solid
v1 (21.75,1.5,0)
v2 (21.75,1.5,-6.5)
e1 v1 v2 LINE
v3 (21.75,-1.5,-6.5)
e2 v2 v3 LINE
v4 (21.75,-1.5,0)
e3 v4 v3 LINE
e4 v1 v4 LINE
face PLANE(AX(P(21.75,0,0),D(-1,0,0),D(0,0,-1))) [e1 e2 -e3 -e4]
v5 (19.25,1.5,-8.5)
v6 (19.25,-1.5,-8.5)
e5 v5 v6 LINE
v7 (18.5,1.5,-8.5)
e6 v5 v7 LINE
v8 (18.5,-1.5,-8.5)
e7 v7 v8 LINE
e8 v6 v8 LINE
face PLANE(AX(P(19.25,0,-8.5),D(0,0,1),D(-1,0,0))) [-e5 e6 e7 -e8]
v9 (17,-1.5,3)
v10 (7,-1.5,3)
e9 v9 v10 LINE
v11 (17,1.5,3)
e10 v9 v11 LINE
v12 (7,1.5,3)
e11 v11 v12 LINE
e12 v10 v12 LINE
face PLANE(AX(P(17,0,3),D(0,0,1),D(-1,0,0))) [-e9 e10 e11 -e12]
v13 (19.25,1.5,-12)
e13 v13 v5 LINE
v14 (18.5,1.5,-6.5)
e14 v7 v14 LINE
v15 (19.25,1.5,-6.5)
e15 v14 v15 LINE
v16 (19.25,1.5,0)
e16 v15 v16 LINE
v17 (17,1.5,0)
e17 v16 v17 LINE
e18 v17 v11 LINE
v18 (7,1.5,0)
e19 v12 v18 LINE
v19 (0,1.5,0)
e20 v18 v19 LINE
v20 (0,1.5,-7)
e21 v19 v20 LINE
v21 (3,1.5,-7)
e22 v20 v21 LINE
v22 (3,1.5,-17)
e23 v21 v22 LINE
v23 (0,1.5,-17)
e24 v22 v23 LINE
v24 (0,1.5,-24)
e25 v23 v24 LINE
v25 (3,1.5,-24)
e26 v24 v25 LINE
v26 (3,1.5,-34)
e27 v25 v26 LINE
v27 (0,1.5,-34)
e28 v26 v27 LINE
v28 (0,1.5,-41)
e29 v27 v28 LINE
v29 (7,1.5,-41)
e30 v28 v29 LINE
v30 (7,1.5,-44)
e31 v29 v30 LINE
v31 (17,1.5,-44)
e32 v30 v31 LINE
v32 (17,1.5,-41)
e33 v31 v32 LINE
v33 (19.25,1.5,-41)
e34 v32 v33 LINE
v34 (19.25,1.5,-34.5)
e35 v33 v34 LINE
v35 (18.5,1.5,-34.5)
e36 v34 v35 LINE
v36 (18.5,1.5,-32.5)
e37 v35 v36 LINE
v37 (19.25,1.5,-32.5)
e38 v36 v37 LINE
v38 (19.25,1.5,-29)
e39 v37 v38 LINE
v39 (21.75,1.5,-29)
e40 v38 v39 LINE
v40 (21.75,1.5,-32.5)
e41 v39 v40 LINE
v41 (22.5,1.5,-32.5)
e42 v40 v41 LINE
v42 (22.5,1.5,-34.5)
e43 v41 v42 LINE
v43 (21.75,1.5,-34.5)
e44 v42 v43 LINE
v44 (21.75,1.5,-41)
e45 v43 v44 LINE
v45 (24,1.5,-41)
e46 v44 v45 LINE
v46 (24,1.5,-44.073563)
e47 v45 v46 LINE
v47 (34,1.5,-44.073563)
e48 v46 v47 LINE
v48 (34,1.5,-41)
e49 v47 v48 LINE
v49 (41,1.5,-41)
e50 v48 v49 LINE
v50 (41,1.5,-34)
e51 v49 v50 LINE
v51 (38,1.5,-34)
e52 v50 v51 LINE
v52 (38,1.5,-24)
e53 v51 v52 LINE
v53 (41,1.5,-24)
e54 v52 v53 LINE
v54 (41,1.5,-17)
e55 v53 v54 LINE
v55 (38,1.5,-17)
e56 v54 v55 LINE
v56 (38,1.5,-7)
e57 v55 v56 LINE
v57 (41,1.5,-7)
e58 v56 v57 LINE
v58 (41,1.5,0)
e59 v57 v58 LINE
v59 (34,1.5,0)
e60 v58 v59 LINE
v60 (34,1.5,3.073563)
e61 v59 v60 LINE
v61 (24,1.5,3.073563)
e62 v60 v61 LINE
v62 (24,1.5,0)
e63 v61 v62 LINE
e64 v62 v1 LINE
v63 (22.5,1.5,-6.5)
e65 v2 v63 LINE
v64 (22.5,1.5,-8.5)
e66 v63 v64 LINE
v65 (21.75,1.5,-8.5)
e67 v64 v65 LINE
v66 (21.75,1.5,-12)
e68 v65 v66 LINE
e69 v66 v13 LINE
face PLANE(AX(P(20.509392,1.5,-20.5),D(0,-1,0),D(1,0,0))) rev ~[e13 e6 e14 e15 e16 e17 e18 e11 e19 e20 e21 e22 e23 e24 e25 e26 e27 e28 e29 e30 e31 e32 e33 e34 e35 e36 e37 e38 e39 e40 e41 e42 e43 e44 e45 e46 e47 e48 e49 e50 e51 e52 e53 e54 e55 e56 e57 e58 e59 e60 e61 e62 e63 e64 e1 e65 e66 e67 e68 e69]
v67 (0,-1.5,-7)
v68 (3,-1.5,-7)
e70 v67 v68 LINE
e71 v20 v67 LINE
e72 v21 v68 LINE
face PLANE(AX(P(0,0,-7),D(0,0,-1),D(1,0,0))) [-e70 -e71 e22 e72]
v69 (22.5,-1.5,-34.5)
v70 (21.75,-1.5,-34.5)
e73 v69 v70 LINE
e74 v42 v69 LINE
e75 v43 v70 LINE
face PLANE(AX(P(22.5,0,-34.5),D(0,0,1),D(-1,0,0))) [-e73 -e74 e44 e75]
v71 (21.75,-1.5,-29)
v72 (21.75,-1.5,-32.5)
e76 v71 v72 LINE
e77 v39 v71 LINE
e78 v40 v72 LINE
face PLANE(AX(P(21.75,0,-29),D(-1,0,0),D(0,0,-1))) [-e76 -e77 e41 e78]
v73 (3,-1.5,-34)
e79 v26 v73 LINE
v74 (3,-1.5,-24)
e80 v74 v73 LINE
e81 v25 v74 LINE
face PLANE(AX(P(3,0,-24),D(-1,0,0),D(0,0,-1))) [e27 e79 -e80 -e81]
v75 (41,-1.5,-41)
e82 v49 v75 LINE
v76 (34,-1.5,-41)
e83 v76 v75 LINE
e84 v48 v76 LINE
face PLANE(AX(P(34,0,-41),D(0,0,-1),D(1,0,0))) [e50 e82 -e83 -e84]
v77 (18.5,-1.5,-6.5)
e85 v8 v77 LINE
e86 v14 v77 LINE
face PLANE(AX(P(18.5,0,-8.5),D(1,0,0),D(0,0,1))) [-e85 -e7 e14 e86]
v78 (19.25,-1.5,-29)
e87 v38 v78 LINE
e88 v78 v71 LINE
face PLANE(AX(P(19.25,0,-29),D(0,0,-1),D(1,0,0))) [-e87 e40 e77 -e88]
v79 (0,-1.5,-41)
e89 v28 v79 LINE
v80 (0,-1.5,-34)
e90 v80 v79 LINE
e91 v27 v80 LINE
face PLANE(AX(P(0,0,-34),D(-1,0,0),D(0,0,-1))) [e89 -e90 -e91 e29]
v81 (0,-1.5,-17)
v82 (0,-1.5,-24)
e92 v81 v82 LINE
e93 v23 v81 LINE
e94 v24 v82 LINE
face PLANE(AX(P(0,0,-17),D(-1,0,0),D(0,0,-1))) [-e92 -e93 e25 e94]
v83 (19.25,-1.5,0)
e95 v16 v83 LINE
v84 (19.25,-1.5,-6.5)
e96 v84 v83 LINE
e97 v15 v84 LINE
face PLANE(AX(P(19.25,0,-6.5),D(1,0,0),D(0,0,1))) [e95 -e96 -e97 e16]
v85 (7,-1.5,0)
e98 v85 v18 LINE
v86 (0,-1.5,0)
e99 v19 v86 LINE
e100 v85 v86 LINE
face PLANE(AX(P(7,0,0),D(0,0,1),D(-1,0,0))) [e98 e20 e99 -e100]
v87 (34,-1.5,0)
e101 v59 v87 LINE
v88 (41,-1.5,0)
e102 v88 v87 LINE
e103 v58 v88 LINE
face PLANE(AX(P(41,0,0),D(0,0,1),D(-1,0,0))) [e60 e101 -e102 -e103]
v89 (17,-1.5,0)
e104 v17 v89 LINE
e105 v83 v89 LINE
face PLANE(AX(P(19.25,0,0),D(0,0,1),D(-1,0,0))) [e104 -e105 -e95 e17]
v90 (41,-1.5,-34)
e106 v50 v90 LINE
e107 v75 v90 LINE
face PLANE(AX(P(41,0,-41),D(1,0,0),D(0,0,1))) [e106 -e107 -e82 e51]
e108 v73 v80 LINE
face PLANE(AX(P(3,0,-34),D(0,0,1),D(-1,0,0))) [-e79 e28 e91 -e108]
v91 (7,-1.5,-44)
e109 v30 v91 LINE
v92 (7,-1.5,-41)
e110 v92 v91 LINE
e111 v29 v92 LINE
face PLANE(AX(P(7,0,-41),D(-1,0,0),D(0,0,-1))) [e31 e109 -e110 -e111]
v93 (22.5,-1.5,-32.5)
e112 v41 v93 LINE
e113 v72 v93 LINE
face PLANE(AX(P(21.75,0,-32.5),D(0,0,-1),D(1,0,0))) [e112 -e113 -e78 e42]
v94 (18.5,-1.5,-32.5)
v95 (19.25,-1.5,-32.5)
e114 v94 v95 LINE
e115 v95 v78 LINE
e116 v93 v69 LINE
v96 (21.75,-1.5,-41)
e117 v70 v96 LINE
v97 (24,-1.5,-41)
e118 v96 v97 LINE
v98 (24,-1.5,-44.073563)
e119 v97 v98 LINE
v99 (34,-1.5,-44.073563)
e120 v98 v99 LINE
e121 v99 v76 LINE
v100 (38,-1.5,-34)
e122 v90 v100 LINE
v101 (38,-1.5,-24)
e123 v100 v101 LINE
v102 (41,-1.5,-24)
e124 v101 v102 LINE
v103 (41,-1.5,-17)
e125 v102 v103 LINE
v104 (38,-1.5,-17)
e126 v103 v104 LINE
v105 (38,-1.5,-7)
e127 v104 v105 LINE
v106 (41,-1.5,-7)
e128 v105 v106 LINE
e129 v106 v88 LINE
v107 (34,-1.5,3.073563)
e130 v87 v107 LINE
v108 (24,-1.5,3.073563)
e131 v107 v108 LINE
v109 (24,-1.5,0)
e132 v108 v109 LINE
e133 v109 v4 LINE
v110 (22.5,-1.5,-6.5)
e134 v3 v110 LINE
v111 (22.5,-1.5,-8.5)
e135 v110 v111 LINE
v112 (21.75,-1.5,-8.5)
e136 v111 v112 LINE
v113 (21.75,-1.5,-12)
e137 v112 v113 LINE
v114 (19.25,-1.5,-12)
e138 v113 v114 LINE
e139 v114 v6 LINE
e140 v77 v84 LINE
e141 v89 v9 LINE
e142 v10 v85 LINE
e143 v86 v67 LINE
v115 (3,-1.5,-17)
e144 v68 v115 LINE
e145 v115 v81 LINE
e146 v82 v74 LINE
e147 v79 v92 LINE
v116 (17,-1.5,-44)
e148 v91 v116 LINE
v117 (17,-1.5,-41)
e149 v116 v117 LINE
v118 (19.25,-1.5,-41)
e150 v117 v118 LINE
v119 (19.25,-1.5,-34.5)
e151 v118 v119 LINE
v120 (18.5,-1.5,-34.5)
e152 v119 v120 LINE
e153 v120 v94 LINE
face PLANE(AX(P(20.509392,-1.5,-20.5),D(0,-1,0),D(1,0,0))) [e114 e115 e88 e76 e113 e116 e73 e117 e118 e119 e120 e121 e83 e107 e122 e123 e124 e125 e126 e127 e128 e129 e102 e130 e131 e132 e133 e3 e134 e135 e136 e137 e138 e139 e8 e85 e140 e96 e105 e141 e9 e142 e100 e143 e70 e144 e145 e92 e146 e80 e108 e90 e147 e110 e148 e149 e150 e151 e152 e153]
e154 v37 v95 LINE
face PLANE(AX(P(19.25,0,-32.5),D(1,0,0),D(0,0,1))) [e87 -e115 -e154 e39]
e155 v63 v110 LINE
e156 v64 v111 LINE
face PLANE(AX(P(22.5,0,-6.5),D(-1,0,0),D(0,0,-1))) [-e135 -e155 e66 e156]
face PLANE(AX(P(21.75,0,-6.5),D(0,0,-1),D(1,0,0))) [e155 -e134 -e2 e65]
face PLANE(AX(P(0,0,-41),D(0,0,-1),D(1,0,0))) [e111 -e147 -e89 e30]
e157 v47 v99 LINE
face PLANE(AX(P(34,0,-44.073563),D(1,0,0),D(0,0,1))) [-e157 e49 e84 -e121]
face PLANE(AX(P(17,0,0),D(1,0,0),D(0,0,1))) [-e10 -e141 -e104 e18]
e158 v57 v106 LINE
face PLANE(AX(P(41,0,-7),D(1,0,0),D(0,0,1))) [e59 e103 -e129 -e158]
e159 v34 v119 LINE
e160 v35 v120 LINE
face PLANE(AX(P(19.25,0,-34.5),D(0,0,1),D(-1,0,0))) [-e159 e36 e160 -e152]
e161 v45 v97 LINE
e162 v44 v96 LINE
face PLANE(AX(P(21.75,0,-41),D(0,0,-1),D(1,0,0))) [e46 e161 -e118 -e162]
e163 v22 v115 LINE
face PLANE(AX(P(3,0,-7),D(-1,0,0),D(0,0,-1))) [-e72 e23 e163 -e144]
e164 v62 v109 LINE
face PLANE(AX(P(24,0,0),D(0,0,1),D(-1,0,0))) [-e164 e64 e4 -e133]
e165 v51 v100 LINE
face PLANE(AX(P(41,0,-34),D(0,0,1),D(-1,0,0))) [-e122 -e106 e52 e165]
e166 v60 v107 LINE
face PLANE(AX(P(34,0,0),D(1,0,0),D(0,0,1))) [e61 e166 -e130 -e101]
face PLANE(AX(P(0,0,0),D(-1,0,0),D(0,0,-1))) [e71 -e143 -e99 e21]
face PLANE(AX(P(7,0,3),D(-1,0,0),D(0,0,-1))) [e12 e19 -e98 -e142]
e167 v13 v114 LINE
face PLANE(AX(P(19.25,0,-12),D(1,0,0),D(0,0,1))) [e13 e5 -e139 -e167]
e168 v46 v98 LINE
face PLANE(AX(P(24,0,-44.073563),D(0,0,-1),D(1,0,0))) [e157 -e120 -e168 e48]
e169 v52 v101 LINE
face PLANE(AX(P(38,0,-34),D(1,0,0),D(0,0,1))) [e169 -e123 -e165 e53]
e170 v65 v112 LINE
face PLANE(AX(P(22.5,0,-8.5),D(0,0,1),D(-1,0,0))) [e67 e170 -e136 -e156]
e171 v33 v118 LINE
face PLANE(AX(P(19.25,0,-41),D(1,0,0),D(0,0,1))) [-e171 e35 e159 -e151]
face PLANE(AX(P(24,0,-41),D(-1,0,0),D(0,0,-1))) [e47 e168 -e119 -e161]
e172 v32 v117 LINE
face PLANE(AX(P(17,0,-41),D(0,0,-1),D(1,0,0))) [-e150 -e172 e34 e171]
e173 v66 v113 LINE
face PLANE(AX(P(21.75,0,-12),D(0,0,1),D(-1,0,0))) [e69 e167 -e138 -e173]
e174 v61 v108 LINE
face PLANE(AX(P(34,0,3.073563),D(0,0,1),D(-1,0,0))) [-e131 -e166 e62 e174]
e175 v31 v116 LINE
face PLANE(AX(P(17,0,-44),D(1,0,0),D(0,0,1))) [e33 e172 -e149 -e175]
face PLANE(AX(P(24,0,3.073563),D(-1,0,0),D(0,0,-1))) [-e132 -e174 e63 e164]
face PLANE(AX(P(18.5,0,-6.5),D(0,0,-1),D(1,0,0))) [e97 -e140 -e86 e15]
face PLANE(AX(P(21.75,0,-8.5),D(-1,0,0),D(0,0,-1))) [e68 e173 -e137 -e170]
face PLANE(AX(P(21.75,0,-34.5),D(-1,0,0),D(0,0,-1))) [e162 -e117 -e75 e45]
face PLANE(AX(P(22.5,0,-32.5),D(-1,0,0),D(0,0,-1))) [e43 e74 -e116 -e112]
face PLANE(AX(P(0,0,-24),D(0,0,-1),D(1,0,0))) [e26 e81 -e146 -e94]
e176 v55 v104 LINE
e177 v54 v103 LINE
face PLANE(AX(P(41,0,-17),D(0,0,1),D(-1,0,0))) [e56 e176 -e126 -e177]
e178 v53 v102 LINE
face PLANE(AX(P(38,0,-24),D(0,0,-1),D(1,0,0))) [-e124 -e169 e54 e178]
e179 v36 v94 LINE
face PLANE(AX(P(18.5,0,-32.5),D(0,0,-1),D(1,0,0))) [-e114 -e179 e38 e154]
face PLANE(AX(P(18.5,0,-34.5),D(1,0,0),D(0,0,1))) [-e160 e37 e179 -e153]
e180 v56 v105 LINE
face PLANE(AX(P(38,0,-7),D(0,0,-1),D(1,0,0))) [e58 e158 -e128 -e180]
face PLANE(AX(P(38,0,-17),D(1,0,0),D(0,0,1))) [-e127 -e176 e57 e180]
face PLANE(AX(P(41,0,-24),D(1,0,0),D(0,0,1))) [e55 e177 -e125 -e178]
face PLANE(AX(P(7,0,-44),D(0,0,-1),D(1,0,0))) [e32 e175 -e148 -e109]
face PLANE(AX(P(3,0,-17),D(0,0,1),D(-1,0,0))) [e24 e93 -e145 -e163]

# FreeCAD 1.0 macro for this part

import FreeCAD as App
import Part
import Sketcher
from FreeCAD import Vector


def add_polygon(sketch, points):
    """Adds a closed chain of lines whose ends are joined by coincident constraints."""
    first, n = sketch.GeometryCount, len(points)
    for a, b in zip(points, points[1:] + points[:1]):
        sketch.addGeometry(Part.LineSegment(App.Vector(*a, 0), App.Vector(*b, 0)), False)
    for i in range(n):
        sketch.addConstraint(Sketcher.Constraint("Coincident", first + i, 2, first + (i + 1) % n, 1))

doc = App.newDocument("Part")
body = doc.addObject("PartDesign::Body", "Body")

# Sketch on XZ plane
sketch1 = body.newObject("Sketcher::SketchObject", "Sketch")
sketch1.AttachmentSupport = (doc.getObject("XZ_Plane"), [""])
sketch1.MapMode = "FlatFace"
add_polygon(sketch1, [(7, 0), (0, 0), (0, -7), (3, -7), (3, -17), (0, -17), (0, -24), (3, -24), (3, -34), (0, -34), (0, -41), (7, -41), (7, -44), (17, -44), (17, -41), (19.2, -41), (19.2, -34.5), (18.5, -34.5), (18.5, -32.5), (19.2, -32.5), (19.2, -29), (21.8, -29), (21.8, -32.5), (22.5, -32.5), (22.5, -34.5), (21.8, -34.5), (21.8, -41), (24, -41), (24, -44.1), (34, -44.1), (34, -41), (41, -41), (41, -34), (38, -34), (38, -24), (41, -24), (41, -17), (38, -17), (38, -7), (41, -7), (41, 0), (34, 0), (34, 3.1), (24, 3.1), (24, 0), (21.8, 0), (21.8, -6.5), (22.5, -6.5), (22.5, -8.5), (21.8, -8.5), (21.8, -12), (19.2, -12), (19.2, -8.5), (18.5, -8.5), (18.5, -6.5), (19.2, -6.5), (19.2, 0), (17, 0), (17, 3), (7, 3)])  # lines 0-59
sketch1.addConstraint([
    Sketcher.Constraint("Horizontal", 0),
    Sketcher.Constraint("Vertical", 1),
    Sketcher.Constraint("Horizontal", 2),
    Sketcher.Constraint("Vertical", 3),
    Sketcher.Constraint("Horizontal", 4),
    Sketcher.Constraint("Vertical", 5),
    Sketcher.Constraint("Horizontal", 6),
    Sketcher.Constraint("Vertical", 7),
    Sketcher.Constraint("Horizontal", 8),
    Sketcher.Constraint("Vertical", 9),
    Sketcher.Constraint("Horizontal", 10),
    Sketcher.Constraint("Vertical", 11),
    Sketcher.Constraint("Horizontal", 12),
    Sketcher.Constraint("Vertical", 13),
    Sketcher.Constraint("Horizontal", 14),
    Sketcher.Constraint("Vertical", 15),
    Sketcher.Constraint("Horizontal", 16),
    Sketcher.Constraint("Vertical", 17),
    Sketcher.Constraint("Horizontal", 18),
    Sketcher.Constraint("Vertical", 19),
    Sketcher.Constraint("Horizontal", 20),
    Sketcher.Constraint("Vertical", 21),
    Sketcher.Constraint("Horizontal", 22),
    Sketcher.Constraint("Vertical", 23),
    Sketcher.Constraint("Horizontal", 24),
    Sketcher.Constraint("Vertical", 25),
    Sketcher.Constraint("Horizontal", 26),
    Sketcher.Constraint("Vertical", 27),
    Sketcher.Constraint("Horizontal", 28),
    Sketcher.Constraint("Vertical", 29),
    Sketcher.Constraint("Horizontal", 30),
    Sketcher.Constraint("Vertical", 31),
    Sketcher.Constraint("Horizontal", 32),
    Sketcher.Constraint("Vertical", 33),
    Sketcher.Constraint("Horizontal", 34),
    Sketcher.Constraint("Vertical", 35),
    Sketcher.Constraint("Horizontal", 36),
    Sketcher.Constraint("Vertical", 37),
    Sketcher.Constraint("Horizontal", 38),
    Sketcher.Constraint("Vertical", 39),
    Sketcher.Constraint("Horizontal", 40),
    Sketcher.Constraint("Vertical", 41),
    Sketcher.Constraint("Horizontal", 42),
    Sketcher.Constraint("Vertical", 43),
    Sketcher.Constraint("Horizontal", 44),
    Sketcher.Constraint("Vertical", 45),
    Sketcher.Constraint("Horizontal", 46),
    Sketcher.Constraint("Vertical", 47),
    Sketcher.Constraint("Horizontal", 48),
    Sketcher.Constraint("Vertical", 49),
    Sketcher.Constraint("Horizontal", 50),
    Sketcher.Constraint("Vertical", 51),
    Sketcher.Constraint("Horizontal", 52),
    Sketcher.Constraint("Vertical", 53),
    Sketcher.Constraint("Horizontal", 54),
    Sketcher.Constraint("Vertical", 55),
    Sketcher.Constraint("Horizontal", 56),
    Sketcher.Constraint("Vertical", 57),
    Sketcher.Constraint("Horizontal", 58),
    Sketcher.Constraint("Vertical", 59),
    Sketcher.Constraint("Coincident", 0, 2, -1, 1),
    Sketcher.Constraint("PointOnObject", 4, 2, -2),
    Sketcher.Constraint("PointOnObject", 8, 2, -2),
    Sketcher.Constraint("PointOnObject", 39, 2, -1),
    Sketcher.Constraint("PointOnObject", 43, 2, -1),
    Sketcher.Constraint("PointOnObject", 55, 2, -1),
    Sketcher.Constraint("Horizontal", 10, 2, 13, 2),
    Sketcher.Constraint("Horizontal", 18, 2, 21, 2),
    Sketcher.Constraint("Horizontal", 16, 2, 23, 2),
    Sketcher.Constraint("Horizontal", 14, 2, 25, 2),
    Sketcher.Constraint("Horizontal", 26, 2, 29, 2),
    Sketcher.Constraint("Horizontal", 8, 2, 31, 2),
    Sketcher.Constraint("Horizontal", 6, 2, 33, 2),
    Sketcher.Constraint("Horizontal", 4, 2, 35, 2),
    Sketcher.Constraint("Horizontal", 2, 2, 37, 2),
    Sketcher.Constraint("Horizontal", 48, 2, 51, 2),
    Sketcher.Constraint("Horizontal", 46, 2, 53, 2),
    Sketcher.Constraint("Vertical", 3, 2, 6, 2),
    Sketcher.Constraint("Vertical", 15, 2, 18, 2),
    Sketcher.Constraint("Vertical", 21, 2, 24, 2),
    Sketcher.Constraint("Vertical", 31, 2, 34, 2),
    Sketcher.Constraint("Vertical", 33, 2, 36, 2),
    Sketcher.Constraint("Vertical", 35, 2, 38, 2),
    Sketcher.Constraint("Vertical", 29, 2, 40, 2),
    Sketcher.Constraint("Vertical", 27, 2, 42, 2),
    Sketcher.Constraint("Vertical", 25, 2, 44, 2),
    Sketcher.Constraint("Vertical", 23, 2, 46, 2),
    Sketcher.Constraint("Vertical", 45, 2, 48, 2),
    Sketcher.Constraint("Vertical", 19, 2, 50, 2),
    Sketcher.Constraint("Vertical", 17, 2, 52, 2),
    Sketcher.Constraint("Vertical", 51, 2, 54, 2),
    Sketcher.Constraint("Vertical", 13, 2, 56, 2),
    Sketcher.Constraint("Vertical", 11, 2, 58, 2),
    Sketcher.Constraint("Equal", 18, 22),
    Sketcher.Constraint("Equal", 14, 26),
    Sketcher.Constraint("Equal", 12, 28),
    Sketcher.Constraint("Equal", 10, 30),
    Sketcher.Constraint("Equal", 8, 32),
    Sketcher.Constraint("Equal", 40, 1),
    Sketcher.Constraint("Equal", 58, 3),
    Sketcher.Constraint("Equal", 1, 5),
    Sketcher.Constraint("Equal", 3, 7),
    Sketcher.Constraint("Equal", 5, 9),
    Sketcher.Constraint("Equal", 38, 11),
    Sketcher.Constraint("Equal", 29, 41),
    Sketcher.Constraint("Equal", 25, 45),
    Sketcher.Constraint("Equal", 23, 47),
    Sketcher.Constraint("Equal", 21, 49),
    Sketcher.Constraint("Equal", 13, 57),
    Sketcher.Constraint("DistanceX", 0, 2, 0, 1, 7.0),
    Sketcher.Constraint("DistanceX", 2, 1, 2, 2, 3.0),
    Sketcher.Constraint("DistanceX", 12, 1, 12, 2, 10.0),
    Sketcher.Constraint("DistanceY", 17, 1, 17, 2, 2.0),
    Sketcher.Constraint("DistanceX", 20, 1, 20, 2, 2.5),
    Sketcher.Constraint("DistanceY", 15, 1, 15, 2, 6.5),
    Sketcher.Constraint("DistanceY", 19, 1, 19, 2, 3.5),
    Sketcher.Constraint("DistanceX", -1, 1, 26, 2, 24.0),
    Sketcher.Constraint("DistanceX", 17, 2, 22, 2, 4.0),
    Sketcher.Constraint("DistanceY", 27, 2, 27, 1, 3.073563),
])
pad1 = body.newObject("PartDesign::Pad", "Pad")
pad1.Profile = sketch1
pad1.Length = 3
pad1.Midplane = True

doc.recompute()
